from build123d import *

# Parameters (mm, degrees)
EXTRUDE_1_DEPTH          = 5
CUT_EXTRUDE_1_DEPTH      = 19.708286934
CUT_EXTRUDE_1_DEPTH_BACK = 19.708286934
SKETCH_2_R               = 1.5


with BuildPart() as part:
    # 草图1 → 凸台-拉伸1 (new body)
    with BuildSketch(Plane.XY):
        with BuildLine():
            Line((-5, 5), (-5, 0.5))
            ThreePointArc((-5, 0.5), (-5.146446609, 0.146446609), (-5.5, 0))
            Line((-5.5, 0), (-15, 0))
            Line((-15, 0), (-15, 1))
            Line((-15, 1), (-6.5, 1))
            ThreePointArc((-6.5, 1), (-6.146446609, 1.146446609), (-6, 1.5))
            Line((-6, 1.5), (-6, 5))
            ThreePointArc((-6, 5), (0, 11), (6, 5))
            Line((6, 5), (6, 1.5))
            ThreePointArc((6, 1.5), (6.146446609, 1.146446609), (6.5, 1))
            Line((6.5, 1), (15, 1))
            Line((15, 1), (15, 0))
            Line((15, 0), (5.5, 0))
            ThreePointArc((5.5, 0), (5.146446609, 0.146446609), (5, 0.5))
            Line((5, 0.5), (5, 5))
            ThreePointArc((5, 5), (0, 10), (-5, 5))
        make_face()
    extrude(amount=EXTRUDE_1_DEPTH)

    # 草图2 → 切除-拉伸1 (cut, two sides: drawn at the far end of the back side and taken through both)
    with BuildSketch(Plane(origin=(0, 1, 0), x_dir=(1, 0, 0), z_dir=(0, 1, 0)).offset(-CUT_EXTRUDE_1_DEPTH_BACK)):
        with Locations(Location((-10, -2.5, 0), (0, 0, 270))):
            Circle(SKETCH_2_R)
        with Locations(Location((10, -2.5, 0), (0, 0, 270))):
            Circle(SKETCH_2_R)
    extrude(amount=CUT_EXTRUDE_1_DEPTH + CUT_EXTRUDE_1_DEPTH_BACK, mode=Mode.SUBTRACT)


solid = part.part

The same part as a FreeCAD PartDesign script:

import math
import FreeCAD as App
import Part
import Sketcher
Q = App.Units.Quantity

doc = App.newDocument("Part")
body = doc.addObject("PartDesign::Body", "Body")

# Sketch on XY plane
sketch1 = body.newObject("Sketcher::SketchObject", "Sketch")
sketch1.AttachmentSupport = (doc.getObject("XY_Plane"), [""])
sketch1.MapMode = "FlatFace"
sketch1.addGeometry(Part.LineSegment(App.Vector(-5, 0.5, 0), App.Vector(-5, 5, 0)), False)
sketch1.addGeometry(Part.ArcOfCircle(Part.Circle(App.Vector(0, 5, 0), App.Vector(0, 0, 1), 5), math.radians(0), math.radians(180)), False)
sketch1.addGeometry(Part.LineSegment(App.Vector(5, 5, 0), App.Vector(5, 0.5, 0)), False)
sketch1.addGeometry(Part.ArcOfCircle(Part.Circle(App.Vector(5.5, 0.5, 0), App.Vector(0, 0, 1), 0.5), math.radians(180), math.radians(270)), False)
sketch1.addGeometry(Part.LineSegment(App.Vector(5.5, 0, 0), App.Vector(15, 0, 0)), False)
sketch1.addGeometry(Part.LineSegment(App.Vector(15, 0, 0), App.Vector(15, 1, 0)), False)
sketch1.addGeometry(Part.LineSegment(App.Vector(15, 1, 0), App.Vector(6.5, 1, 0)), False)
sketch1.addGeometry(Part.ArcOfCircle(Part.Circle(App.Vector(6.5, 1.5, 0), App.Vector(0, 0, 1), 0.5), math.radians(180), math.radians(270)), False)
sketch1.addGeometry(Part.LineSegment(App.Vector(6, 1.5, 0), App.Vector(6, 5, 0)), False)
sketch1.addGeometry(Part.ArcOfCircle(Part.Circle(App.Vector(0, 5, 0), App.Vector(0, 0, 1), 6), math.radians(0), math.radians(180)), False)
sketch1.addGeometry(Part.LineSegment(App.Vector(-6, 5, 0), App.Vector(-6, 1.5, 0)), False)
sketch1.addGeometry(Part.ArcOfCircle(Part.Circle(App.Vector(-6.5, 1.5, 0), App.Vector(0, 0, 1), 0.5), math.radians(-90), math.radians(0)), False)
sketch1.addGeometry(Part.LineSegment(App.Vector(-6.5, 1, 0), App.Vector(-15, 1, 0)), False)
sketch1.addGeometry(Part.LineSegment(App.Vector(-15, 1, 0), App.Vector(-15, 0, 0)), False)
sketch1.addGeometry(Part.LineSegment(App.Vector(-15, 0, 0), App.Vector(-5.5, 0, 0)), False)
sketch1.addGeometry(Part.ArcOfCircle(Part.Circle(App.Vector(-5.5, 0.5, 0), App.Vector(0, 0, 1), 0.5), math.radians(-90), math.radians(0)), False)
sketch1.addConstraint(Sketcher.Constraint("Tangent", 0, 2, 1, 2))
sketch1.addConstraint(Sketcher.Constraint("Tangent", 1, 1, 2, 1))
sketch1.addConstraint(Sketcher.Constraint("Tangent", 2, 2, 3, 1))
sketch1.addConstraint(Sketcher.Constraint("Tangent", 3, 2, 4, 1))
sketch1.addConstraint(Sketcher.Constraint("Coincident", 4, 2, 5, 1))
sketch1.addConstraint(Sketcher.Constraint("Coincident", 5, 2, 6, 1))
sketch1.addConstraint(Sketcher.Constraint("Tangent", 6, 2, 7, 2))
sketch1.addConstraint(Sketcher.Constraint("Tangent", 7, 1, 8, 1))
sketch1.addConstraint(Sketcher.Constraint("Tangent", 8, 2, 9, 1))
sketch1.addConstraint(Sketcher.Constraint("Tangent", 9, 2, 10, 1))
sketch1.addConstraint(Sketcher.Constraint("Tangent", 10, 2, 11, 2))
sketch1.addConstraint(Sketcher.Constraint("Tangent", 11, 1, 12, 1))
sketch1.addConstraint(Sketcher.Constraint("Coincident", 12, 2, 13, 1))
sketch1.addConstraint(Sketcher.Constraint("Coincident", 13, 2, 14, 1))
sketch1.addConstraint(Sketcher.Constraint("Tangent", 14, 2, 15, 1))
sketch1.addConstraint(Sketcher.Constraint("Tangent", 15, 2, 0, 1))
sketch1.addConstraint(Sketcher.Constraint("Vertical", 0))
sketch1.addConstraint(Sketcher.Constraint("Vertical", 2))
sketch1.addConstraint(Sketcher.Constraint("Horizontal", 4))
sketch1.addConstraint(Sketcher.Constraint("Vertical", 5))
sketch1.addConstraint(Sketcher.Constraint("Horizontal", 6))
sketch1.addConstraint(Sketcher.Constraint("Vertical", 8))
sketch1.addConstraint(Sketcher.Constraint("Vertical", 10))
sketch1.addConstraint(Sketcher.Constraint("Horizontal", 12))
sketch1.addConstraint(Sketcher.Constraint("Vertical", 13))
sketch1.addConstraint(Sketcher.Constraint("Horizontal", 14))
sketch1.addConstraint(Sketcher.Constraint("Coincident", 9, 3, 1, 3))
sketch1.addConstraint(Sketcher.Constraint("Equal", 3, 7))
sketch1.addConstraint(Sketcher.Constraint("Equal", 7, 11))
sketch1.addConstraint(Sketcher.Constraint("Equal", 11, 15))
sketch1.addConstraint(Sketcher.Constraint("Symmetric", 4, 2, 13, 2, -1, 1))
sketch1.addConstraint(Sketcher.Constraint("Symmetric", 7, 3, 11, 3, -2))
sketch1.addConstraint(Sketcher.Constraint("PointOnObject", 3, 2, -1))
sketch1.addConstraint(Sketcher.Constraint("Radius", 1, Q("5 mm")))
sketch1.addConstraint(Sketcher.Constraint("Radius", 9, Q("6 mm")))
sketch1.addConstraint(Sketcher.Constraint("Radius", 3, Q("0.5 mm")))
sketch1.addConstraint(Sketcher.Constraint("DistanceY", 5, 1, 5, 2, Q("1 mm")))
sketch1.addConstraint(Sketcher.Constraint("DistanceX", 4, 1, 4, 2, Q("9.5 mm")))
sketch1.addConstraint(Sketcher.Constraint("DistanceY", 0, 1, 0, 2, Q("4.5 mm")))
pad1 = body.newObject("PartDesign::Pad", "Pad")
pad1.Profile = sketch1
pad1.Length = 5

# Sketch on XZ plane
sketch2 = body.newObject("Sketcher::SketchObject", "Sketch001")
sketch2.AttachmentSupport = (doc.getObject("XZ_Plane"), [""])
sketch2.MapMode = "FlatFace"
sketch2.AttachmentOffset = App.Placement(App.Vector(0, 0, -1), App.Rotation())
sketch2.addGeometry(Part.Circle(App.Vector(-10, 2.5, 0), App.Vector(0, 0, 1), 1.5), False)
sketch2.addGeometry(Part.Circle(App.Vector(10, 2.5, 0), App.Vector(0, 0, 1), 1.5), False)
sketch2.addConstraint(Sketcher.Constraint("Equal", 0, 1))
sketch2.addConstraint(Sketcher.Constraint("Symmetric", 0, 3, 1, 3, -2))
sketch2.addConstraint(Sketcher.Constraint("Diameter", 0, Q("3 mm")))
sketch2.addConstraint(Sketcher.Constraint("DistanceX", 0, 3, -1, 1, Q("10 mm")))
sketch2.addConstraint(Sketcher.Constraint("DistanceY", -1, 1, 0, 3, Q("2.5 mm")))
pocket1 = body.newObject("PartDesign::Pocket", "Pocket")
pocket1.Profile = sketch2
pocket1.Type = "ThroughAll"
pocket1.Midplane = True

doc.recompute()
